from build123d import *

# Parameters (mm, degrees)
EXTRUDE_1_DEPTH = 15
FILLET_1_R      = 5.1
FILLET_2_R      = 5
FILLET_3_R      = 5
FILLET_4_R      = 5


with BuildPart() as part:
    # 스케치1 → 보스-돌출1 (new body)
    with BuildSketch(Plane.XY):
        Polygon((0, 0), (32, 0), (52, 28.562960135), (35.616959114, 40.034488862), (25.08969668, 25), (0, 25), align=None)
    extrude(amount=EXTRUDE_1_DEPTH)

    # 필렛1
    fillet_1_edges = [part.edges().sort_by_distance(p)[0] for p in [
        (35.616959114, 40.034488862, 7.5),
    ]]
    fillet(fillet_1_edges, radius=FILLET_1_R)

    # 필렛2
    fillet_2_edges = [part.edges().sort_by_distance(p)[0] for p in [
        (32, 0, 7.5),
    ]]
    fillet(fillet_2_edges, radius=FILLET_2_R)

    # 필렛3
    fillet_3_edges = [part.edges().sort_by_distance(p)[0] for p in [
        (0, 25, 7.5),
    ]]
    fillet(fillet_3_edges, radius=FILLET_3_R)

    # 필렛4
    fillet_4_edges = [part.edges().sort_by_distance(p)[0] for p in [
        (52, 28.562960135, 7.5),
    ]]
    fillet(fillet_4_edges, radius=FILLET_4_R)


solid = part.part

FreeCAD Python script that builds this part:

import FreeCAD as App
import Part
import Sketcher

V = App.Vector
Q = App.Units.Quantity


def edges_at(feature, points):
    """Names of the edges that pass closest to the given points."""
    edges = feature.Shape.Edges
    near = lambda p: min(range(len(edges)), key=lambda i: edges[i].distToShape(Part.Vertex(*p))[0])
    return sorted({f"Edge{near(p) + 1}" for p in points})


def add_polygon(sketch, points):
    """Adds a closed chain of lines whose ends are joined by coincident constraints."""
    first, n = sketch.GeometryCount, len(points)
    for a, b in zip(points, points[1:] + points[:1]):
        sketch.addGeometry(Part.LineSegment(App.Vector(*a, 0), App.Vector(*b, 0)), False)
    for i in range(n):
        sketch.addConstraint(Sketcher.Constraint("Coincident", first + i, 2, first + (i + 1) % n, 1))

doc = App.newDocument("Part")
body = doc.addObject("PartDesign::Body", "Body")

# Sketch on XY plane
sketch1 = body.newObject("Sketcher::SketchObject", "Sketch")
sketch1.AttachmentSupport = (doc.getObject("XY_Plane"), [""])
sketch1.MapMode = "FlatFace"
add_polygon(sketch1, [(0, 0), (32, 0), (52, 29), (36, 40), (25, 25), (0, 25)])  # lines 0-5
sketch1.addConstraint(Sketcher.Constraint("Horizontal", 0))
sketch1.addConstraint(Sketcher.Constraint("Horizontal", 4))
sketch1.addConstraint(Sketcher.Constraint("Vertical", 5))
sketch1.addConstraint(Sketcher.Constraint("Coincident", 5, 2, -1, 1))
sketch1.addConstraint(Sketcher.Constraint("Perpendicular", 1, 2))
sketch1.addConstraint(Sketcher.Constraint("Perpendicular", 2, 3))
sketch1.addConstraint(Sketcher.Constraint("DistanceX", 0, 1, 0, 2, Q("32 mm")))
sketch1.addConstraint(Sketcher.Constraint("DistanceY", 5, 2, 5, 1, Q("25 mm")))
sketch1.addConstraint(Sketcher.Constraint("Angle", 1, Q("55 deg")))
sketch1.addConstraint(Sketcher.Constraint("Distance", 2, Q("20 mm")))
sketch1.addConstraint(Sketcher.Constraint("DistanceX", -1, 1, 1, 2, Q("52 mm")))
pad1 = body.newObject("PartDesign::Pad", "Pad")
pad1.Profile = sketch1
pad1.Length = 15
doc.recompute()

fillet = body.newObject("PartDesign::Fillet", "Fillet")
fillet.Base = (pad1, edges_at(pad1, [(35.617, 40.034, 7.5)]))
fillet.Radius = 5.1
doc.recompute()

fillet2 = body.newObject("PartDesign::Fillet", "Fillet001")
fillet2.Base = (fillet, edges_at(fillet, [(32, 0, 7.5)]))
fillet2.Radius = 5
doc.recompute()

fillet3 = body.newObject("PartDesign::Fillet", "Fillet002")
fillet3.Base = (fillet2, edges_at(fillet2, [(0, 25, 7.5)]))
fillet3.Radius = 5
doc.recompute()

fillet4 = body.newObject("PartDesign::Fillet", "Fillet003")
fillet4.Base = (fillet3, edges_at(fillet3, [(52, 28.563, 7.5)]))
fillet4.Radius = 5

doc.recompute()
